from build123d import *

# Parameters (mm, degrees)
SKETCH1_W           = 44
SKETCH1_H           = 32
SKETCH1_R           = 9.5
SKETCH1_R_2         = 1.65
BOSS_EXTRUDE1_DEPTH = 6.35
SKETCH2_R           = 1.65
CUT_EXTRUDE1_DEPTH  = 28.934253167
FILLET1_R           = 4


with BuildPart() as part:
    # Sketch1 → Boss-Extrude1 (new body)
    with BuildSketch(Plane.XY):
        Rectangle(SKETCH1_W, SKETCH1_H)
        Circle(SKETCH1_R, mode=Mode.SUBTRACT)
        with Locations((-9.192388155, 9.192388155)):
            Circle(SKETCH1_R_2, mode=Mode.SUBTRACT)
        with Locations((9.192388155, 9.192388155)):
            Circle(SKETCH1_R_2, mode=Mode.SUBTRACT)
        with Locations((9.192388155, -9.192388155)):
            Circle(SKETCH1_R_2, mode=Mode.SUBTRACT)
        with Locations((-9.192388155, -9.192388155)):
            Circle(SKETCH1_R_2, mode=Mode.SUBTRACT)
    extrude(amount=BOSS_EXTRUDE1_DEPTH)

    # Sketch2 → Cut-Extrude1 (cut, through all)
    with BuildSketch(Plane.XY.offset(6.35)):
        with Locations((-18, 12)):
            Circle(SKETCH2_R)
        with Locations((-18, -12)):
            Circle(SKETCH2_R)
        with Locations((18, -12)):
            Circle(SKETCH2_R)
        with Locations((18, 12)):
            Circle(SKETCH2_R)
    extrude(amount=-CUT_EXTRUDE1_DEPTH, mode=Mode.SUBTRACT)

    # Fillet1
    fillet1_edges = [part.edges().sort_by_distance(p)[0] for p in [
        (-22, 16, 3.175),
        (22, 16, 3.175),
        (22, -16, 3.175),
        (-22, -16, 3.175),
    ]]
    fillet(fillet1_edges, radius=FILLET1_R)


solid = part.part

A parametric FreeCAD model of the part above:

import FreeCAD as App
import Part
import Sketcher


def edges_at(feature, points):
    """Names of the edges that pass closest to the given points."""
    edges = feature.Shape.Edges
    near = lambda p: min(range(len(edges)), key=lambda i: edges[i].distToShape(Part.Vertex(*p))[0])
    return sorted({f"Edge{near(p) + 1}" for p in points})

doc = App.newDocument("Part")
body = doc.addObject("PartDesign::Body", "Body")

# Sketch on XY plane
sketch1 = body.newObject("Sketcher::SketchObject", "Sketch")
sketch1.AttachmentSupport = (doc.getObject("XY_Plane"), [""])
sketch1.MapMode = "FlatFace"
sketch1.addGeometry([
    Part.LineSegment(App.Vector(-22, 16, 0), App.Vector(-22, -16, 0)),  # 0
    Part.LineSegment(App.Vector(-22, -16, 0), App.Vector(22, -16, 0)),  # 1
    Part.LineSegment(App.Vector(22, -16, 0), App.Vector(22, 16, 0)),  # 2
    Part.LineSegment(App.Vector(22, 16, 0), App.Vector(-22, 16, 0)),  # 3
    Part.Circle(App.Vector(-9.192388, -9.192388, 0), App.Vector(0, 0, 1), 1.65),  # 4
    Part.Circle(App.Vector(9.192388, -9.192388, 0), App.Vector(0, 0, 1), 1.65),  # 5
    Part.Circle(App.Vector(-9.192388, 9.192388, 0), App.Vector(0, 0, 1), 1.65),  # 6
    Part.Circle(App.Vector(0, 0, 0), App.Vector(0, 0, 1), 9.5),  # 7
    Part.Circle(App.Vector(9.192388, 9.192388, 0), App.Vector(0, 0, 1), 1.65),  # 8
], False)
sketch1.addConstraint([
    Sketcher.Constraint("Coincident", 0, 2, 1, 1),
    Sketcher.Constraint("Coincident", 1, 2, 2, 1),
    Sketcher.Constraint("Coincident", 2, 2, 3, 1),
    Sketcher.Constraint("Coincident", 3, 2, 0, 1),
    Sketcher.Constraint("Vertical", 0),
    Sketcher.Constraint("Horizontal", 1),
    Sketcher.Constraint("Vertical", 2),
    Sketcher.Constraint("Horizontal", 3),
    Sketcher.Constraint("Coincident", 7, 3, -1, 1),
    Sketcher.Constraint("Equal", 4, 5),
    Sketcher.Constraint("Equal", 5, 6),
    Sketcher.Constraint("Equal", 6, 8),
    Sketcher.Constraint("Symmetric", 5, 3, 6, 3, -1, 1),
    Sketcher.Constraint("Symmetric", 4, 3, 8, 3, -1, 1),
    Sketcher.Constraint("Symmetric", 0, 2, 2, 2, -1, 1),
    Sketcher.Constraint("Symmetric", 4, 3, 5, 3, -2),
    Sketcher.Constraint("Diameter", 7, 19.0),
    Sketcher.Constraint("Diameter", 4, 3.3),
    Sketcher.Constraint("DistanceX", 1, 1, 1, 2, 44.0),
    Sketcher.Constraint("DistanceY", 0, 2, 0, 1, 32.0),
    Sketcher.Constraint("DistanceX", 4, 3, -1, 1, 9.192388),
    Sketcher.Constraint("DistanceY", 4, 3, -1, 1, 9.192388),
])
pad1 = body.newObject("PartDesign::Pad", "Pad")
pad1.Profile = sketch1
pad1.Length = 6.35

# Sketch on XY plane
sketch2 = body.newObject("Sketcher::SketchObject", "Sketch001")
sketch2.AttachmentSupport = (doc.getObject("XY_Plane"), [""])
sketch2.MapMode = "FlatFace"
sketch2.AttachmentOffset = App.Placement(App.Vector(0, 0, 6.35), App.Rotation())
sketch2.addGeometry([
    Part.Circle(App.Vector(-18, 12, 0), App.Vector(0, 0, 1), 1.65),
    Part.Circle(App.Vector(-18, -12, 0), App.Vector(0, 0, 1), 1.65),
    Part.Circle(App.Vector(18, -12, 0), App.Vector(0, 0, 1), 1.65),
    Part.Circle(App.Vector(18, 12, 0), App.Vector(0, 0, 1), 1.65),
], False)
sketch2.addConstraint([
    Sketcher.Constraint("Equal", 0, 1),
    Sketcher.Constraint("Equal", 1, 2),
    Sketcher.Constraint("Equal", 2, 3),
    Sketcher.Constraint("Symmetric", 0, 3, 2, 3, -1, 1),
    Sketcher.Constraint("Symmetric", 1, 3, 3, 3, -1, 1),
    Sketcher.Constraint("Symmetric", 1, 3, 2, 3, -2),
    Sketcher.Constraint("Diameter", 0, 3.3),
    Sketcher.Constraint("DistanceX", 0, 3, -1, 1, 18.0),
    Sketcher.Constraint("DistanceY", -1, 1, 0, 3, 12.0),
])
pocket1 = body.newObject("PartDesign::Pocket", "Pocket")
pocket1.Profile = sketch2
pocket1.Type = "ThroughAll"
doc.recompute()

fillet = body.newObject("PartDesign::Fillet", "Fillet")
fillet.Base = (pocket1, edges_at(pocket1, [
    (-22, 16, 3.175),
    (22, 16, 3.175),
    (22, -16, 3.175),
    (-22, -16, 3.175),
]))
fillet.Radius = 4

doc.recompute()
